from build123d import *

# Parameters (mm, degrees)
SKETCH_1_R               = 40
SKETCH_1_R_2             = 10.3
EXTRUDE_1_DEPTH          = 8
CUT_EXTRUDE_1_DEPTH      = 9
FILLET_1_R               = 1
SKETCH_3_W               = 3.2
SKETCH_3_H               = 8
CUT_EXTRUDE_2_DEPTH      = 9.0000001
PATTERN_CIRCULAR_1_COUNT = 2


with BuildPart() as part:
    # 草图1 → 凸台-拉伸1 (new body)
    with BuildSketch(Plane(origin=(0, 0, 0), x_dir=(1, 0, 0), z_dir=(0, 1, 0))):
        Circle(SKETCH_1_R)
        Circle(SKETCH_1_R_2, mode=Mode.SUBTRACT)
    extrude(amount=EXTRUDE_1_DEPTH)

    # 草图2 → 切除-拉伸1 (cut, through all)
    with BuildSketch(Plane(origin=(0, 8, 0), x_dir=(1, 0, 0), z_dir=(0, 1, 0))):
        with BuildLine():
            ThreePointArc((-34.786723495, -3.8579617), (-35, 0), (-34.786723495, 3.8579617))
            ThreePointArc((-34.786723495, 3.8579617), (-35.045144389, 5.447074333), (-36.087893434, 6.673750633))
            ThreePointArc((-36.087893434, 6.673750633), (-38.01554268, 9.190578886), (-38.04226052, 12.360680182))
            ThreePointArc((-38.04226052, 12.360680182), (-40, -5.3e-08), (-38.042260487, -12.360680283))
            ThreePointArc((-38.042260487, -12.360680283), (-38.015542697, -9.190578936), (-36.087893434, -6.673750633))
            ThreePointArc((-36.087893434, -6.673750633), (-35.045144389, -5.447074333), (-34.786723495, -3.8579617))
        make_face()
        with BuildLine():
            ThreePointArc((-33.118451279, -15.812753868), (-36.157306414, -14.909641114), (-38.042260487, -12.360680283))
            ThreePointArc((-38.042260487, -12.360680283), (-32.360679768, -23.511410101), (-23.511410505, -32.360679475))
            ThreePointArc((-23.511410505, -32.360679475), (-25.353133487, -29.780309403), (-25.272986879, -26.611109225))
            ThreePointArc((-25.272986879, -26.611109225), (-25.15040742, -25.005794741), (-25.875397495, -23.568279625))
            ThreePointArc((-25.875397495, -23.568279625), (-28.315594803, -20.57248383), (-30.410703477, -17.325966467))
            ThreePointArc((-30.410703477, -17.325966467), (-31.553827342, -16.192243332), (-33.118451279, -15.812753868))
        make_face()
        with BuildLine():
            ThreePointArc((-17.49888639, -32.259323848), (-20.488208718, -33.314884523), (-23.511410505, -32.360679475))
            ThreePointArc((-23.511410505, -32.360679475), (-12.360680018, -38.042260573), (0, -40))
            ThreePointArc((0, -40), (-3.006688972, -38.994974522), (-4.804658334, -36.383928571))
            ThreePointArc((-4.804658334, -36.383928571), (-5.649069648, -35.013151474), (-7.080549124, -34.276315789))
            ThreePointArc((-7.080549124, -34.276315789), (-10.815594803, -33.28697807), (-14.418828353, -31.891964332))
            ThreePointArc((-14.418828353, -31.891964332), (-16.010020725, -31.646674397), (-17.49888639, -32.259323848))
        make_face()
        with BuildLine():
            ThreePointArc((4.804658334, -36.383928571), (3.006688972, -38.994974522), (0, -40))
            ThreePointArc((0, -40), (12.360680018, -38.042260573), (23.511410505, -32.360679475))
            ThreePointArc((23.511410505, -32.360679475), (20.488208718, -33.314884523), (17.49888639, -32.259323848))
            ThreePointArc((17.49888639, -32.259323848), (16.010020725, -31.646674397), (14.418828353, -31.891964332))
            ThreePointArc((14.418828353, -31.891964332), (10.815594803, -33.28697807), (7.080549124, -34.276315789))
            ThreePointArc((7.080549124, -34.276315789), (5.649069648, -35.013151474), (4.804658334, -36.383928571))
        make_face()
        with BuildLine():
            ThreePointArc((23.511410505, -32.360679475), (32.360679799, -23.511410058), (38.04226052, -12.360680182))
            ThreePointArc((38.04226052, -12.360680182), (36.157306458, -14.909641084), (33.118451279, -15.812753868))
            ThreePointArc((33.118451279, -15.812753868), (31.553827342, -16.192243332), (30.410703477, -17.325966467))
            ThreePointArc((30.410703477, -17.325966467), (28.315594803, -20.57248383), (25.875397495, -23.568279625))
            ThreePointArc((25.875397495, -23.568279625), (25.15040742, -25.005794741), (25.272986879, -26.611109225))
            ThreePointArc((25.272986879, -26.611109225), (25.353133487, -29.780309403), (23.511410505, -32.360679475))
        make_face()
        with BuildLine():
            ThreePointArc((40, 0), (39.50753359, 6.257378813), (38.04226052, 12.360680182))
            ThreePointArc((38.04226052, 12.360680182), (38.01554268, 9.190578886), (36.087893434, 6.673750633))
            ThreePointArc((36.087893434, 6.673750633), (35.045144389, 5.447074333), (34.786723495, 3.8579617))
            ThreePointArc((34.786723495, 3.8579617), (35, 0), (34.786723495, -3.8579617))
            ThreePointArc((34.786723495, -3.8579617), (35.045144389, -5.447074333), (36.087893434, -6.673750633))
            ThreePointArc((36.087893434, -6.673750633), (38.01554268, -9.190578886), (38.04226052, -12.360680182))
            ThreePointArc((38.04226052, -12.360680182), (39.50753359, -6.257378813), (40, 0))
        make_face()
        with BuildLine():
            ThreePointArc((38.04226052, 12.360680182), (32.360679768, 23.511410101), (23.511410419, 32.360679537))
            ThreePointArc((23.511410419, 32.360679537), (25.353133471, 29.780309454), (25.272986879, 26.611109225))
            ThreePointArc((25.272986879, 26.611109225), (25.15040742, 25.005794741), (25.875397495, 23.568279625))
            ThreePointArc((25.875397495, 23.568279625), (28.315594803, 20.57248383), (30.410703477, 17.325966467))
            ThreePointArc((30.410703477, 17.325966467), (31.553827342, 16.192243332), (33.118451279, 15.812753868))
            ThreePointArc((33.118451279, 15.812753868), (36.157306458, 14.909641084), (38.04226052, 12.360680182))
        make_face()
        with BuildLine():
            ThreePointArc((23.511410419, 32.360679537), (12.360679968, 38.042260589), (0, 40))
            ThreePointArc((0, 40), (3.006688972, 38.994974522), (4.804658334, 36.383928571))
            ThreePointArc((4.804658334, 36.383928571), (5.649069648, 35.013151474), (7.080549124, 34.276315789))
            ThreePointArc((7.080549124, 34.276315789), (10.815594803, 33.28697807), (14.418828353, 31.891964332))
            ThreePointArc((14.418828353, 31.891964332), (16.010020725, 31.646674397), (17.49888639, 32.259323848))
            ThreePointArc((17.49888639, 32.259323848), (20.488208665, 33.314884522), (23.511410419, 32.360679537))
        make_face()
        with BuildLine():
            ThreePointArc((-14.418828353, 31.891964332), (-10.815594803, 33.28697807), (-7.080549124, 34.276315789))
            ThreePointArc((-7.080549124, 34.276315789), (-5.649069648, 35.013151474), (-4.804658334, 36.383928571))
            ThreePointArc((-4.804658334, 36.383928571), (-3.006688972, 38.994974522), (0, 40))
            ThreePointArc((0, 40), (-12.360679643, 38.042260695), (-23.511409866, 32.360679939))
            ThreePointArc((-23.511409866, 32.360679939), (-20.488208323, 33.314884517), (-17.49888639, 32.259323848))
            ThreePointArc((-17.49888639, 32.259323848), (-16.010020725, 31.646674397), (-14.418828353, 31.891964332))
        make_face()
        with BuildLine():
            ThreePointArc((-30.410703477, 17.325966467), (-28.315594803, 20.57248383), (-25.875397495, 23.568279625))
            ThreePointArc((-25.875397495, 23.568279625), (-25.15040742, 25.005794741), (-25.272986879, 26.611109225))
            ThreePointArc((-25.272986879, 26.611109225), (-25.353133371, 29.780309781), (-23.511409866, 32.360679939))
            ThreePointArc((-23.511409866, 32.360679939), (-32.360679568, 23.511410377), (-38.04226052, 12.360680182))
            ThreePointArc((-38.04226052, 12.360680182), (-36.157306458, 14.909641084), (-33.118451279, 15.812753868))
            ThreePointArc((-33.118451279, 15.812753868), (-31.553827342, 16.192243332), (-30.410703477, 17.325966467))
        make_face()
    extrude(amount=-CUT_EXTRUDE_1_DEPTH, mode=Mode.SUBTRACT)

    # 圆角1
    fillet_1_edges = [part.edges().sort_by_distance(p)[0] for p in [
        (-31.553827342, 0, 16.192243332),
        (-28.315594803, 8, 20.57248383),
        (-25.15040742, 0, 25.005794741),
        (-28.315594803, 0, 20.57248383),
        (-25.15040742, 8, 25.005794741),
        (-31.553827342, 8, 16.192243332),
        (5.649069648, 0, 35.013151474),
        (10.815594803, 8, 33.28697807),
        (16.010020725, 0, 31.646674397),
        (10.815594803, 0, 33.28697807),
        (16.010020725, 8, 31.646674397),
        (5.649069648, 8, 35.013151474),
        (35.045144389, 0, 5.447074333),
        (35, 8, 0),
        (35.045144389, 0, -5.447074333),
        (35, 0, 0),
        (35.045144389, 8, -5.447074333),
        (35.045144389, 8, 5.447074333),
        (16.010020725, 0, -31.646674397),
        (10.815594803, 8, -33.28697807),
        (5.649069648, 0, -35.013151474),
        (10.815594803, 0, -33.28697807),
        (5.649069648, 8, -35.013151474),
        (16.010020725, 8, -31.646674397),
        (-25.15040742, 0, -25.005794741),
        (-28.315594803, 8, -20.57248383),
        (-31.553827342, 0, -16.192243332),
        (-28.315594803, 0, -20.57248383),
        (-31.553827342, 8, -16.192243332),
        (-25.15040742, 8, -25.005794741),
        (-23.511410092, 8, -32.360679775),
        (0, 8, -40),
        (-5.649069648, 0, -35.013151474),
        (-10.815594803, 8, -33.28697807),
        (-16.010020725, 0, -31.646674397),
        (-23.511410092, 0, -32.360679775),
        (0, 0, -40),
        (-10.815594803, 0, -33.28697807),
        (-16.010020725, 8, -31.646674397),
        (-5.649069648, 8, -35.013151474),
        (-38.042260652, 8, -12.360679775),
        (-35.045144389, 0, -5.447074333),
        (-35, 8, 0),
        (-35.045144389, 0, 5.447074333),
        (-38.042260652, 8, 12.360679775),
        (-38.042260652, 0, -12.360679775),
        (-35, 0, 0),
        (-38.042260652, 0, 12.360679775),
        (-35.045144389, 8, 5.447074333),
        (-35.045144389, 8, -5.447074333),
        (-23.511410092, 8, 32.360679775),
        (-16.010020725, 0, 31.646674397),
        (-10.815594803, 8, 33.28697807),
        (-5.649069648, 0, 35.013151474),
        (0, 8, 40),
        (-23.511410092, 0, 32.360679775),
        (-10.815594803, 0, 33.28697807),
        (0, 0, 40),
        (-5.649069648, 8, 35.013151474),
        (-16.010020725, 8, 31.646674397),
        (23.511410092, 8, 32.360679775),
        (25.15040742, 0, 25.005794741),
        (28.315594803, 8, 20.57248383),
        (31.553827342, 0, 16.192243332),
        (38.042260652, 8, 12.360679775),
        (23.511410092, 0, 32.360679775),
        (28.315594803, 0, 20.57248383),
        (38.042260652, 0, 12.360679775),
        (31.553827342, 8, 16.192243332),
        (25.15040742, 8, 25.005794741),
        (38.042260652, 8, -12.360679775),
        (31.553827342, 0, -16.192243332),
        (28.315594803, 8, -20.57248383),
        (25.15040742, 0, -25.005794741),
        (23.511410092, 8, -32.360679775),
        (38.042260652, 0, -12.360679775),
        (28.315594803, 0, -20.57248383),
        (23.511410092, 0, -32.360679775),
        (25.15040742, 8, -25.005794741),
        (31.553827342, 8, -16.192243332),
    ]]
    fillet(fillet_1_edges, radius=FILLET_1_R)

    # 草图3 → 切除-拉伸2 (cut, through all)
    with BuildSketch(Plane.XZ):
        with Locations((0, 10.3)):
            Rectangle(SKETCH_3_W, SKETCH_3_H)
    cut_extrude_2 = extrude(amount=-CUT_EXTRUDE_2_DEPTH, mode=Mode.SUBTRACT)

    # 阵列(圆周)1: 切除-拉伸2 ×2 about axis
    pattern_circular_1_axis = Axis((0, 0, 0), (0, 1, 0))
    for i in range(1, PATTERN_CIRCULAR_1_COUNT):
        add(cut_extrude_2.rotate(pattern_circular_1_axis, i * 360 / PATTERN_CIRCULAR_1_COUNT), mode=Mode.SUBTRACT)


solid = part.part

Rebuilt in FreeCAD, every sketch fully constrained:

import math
import FreeCAD as App
import Part
import Sketcher

V = App.Vector
Q = App.Units.Quantity


def edges_at(feature, points):
    """Names of the edges that pass closest to the given points."""
    edges = feature.Shape.Edges
    near = lambda p: min(range(len(edges)), key=lambda i: edges[i].distToShape(Part.Vertex(*p))[0])
    return sorted({f"Edge{near(p) + 1}" for p in points})


def add_polygon(sketch, points):
    """Adds a closed chain of lines whose ends are joined by coincident constraints."""
    first, n = sketch.GeometryCount, len(points)
    for a, b in zip(points, points[1:] + points[:1]):
        sketch.addGeometry(Part.LineSegment(App.Vector(*a, 0), App.Vector(*b, 0)), False)
    for i in range(n):
        sketch.addConstraint(Sketcher.Constraint("Coincident", first + i, 2, first + (i + 1) % n, 1))

doc = App.newDocument("Part")
params = doc.addObject("Spreadsheet::Sheet", "Params")
for row, (alias, value) in enumerate([
    ("sketch1_diameter", "80 mm"),
    ("sketch1_diameter2", "20.6 mm"),
    ("pad1_length", "8 mm"),
    ("sketch2_radius", "35 mm"),
    ("sketch2_radius2", "3 mm"),
    ("sketch2_radius3", "5 mm"),
    ("sketch2_radius4", "40 mm"),
    ("fillet_radius", "1 mm"),
    ("sketch3_height", "8 mm"),
    ("sketch3_width", "3.2 mm"),
], start=1):
    params.set(f"A{row}", alias)
    params.set(f"B{row}", "=" + value)
    params.setAlias(f"B{row}", alias)

body = doc.addObject("PartDesign::Body", "Body")

sketch1 = body.newObject("Sketcher::SketchObject", "Sketch")
sketch1.AttachmentSupport = (doc.getObject("XZ_Plane"), [""])
sketch1.MapMode = "FlatFace"
sketch1.addGeometry([
    Part.Circle(V(0, 0, 0), V(0, 0, 1), 40),
    Part.Circle(V(0, 0, 0), V(0, 0, 1), 10),
], False)
sketch1.addConstraint([
    Sketcher.Constraint("Coincident", 0, 3, -1, 1),
    Sketcher.Constraint("Coincident", 1, 3, -1, 1),
    Sketcher.Constraint("Diameter", 0, Q("80 mm")),
    Sketcher.Constraint("Diameter", 1, Q("20.6 mm")),
])
sketch1.setExpression("Constraints[2]", "Params.sketch1_diameter")
sketch1.setExpression("Constraints[3]", "Params.sketch1_diameter2")
pad1 = body.newObject("PartDesign::Pad", "Pad")
pad1.Profile = sketch1
pad1.setExpression("Length", "Params.pad1_length")
pad1.Reversed = True

sketch2 = body.newObject("Sketcher::SketchObject", "Sketch001")
sketch2.AttachmentSupport = (doc.getObject("XZ_Plane"), [""])
sketch2.MapMode = "FlatFace"
sketch2.AttachmentOffset = App.Placement(V(0, 0, -8), App.Rotation())
sketch2.addGeometry([
    Part.ArcOfCircle(Part.Circle(V(0, 0, 0), V(0, 0, 1), 35), math.radians(173.67), math.radians(186.33)),
    Part.ArcOfCircle(Part.Circle(V(-37.8, -4.2, 0), V(0, 0, 1), 3), math.radians(-56), math.radians(6)),
    Part.ArcOfCircle(Part.Circle(V(-33.3, -10.8, 0), V(0, 0, 1), 5), math.radians(124), math.radians(198)),
    Part.ArcOfCircle(Part.Circle(V(0, 0, 0), V(0, 0, 1), 40), math.radians(162), math.radians(198)),
    Part.ArcOfCircle(Part.Circle(V(-33.3, 10.8, 0), V(0, 0, 1), 5), math.radians(162), math.radians(236)),
    Part.ArcOfCircle(Part.Circle(V(-37.8, 4.2, 0), V(0, 0, 1), 3), math.radians(-6), math.radians(56)),
    Part.ArcOfCircle(Part.Circle(V(-33.3, 10.8, 0), V(0, 0, 1), 5), math.radians(88), math.radians(162)),
    Part.ArcOfCircle(Part.Circle(V(0, 0, 0), V(0, 0, 1), 40), math.radians(126), math.radians(162)),
    Part.ArcOfCircle(Part.Circle(V(-20.6, 28.3, 0), V(0, 0, 1), 5), math.radians(126), math.radians(200)),
    Part.ArcOfCircle(Part.Circle(V(-28.1, 25.6, 0), V(0, 0, 1), 3), math.radians(-42), math.radians(20)),
    Part.ArcOfCircle(Part.Circle(V(0, 0, 0), V(0, 0, 1), 35), math.radians(137.67), math.radians(150.33)),
    Part.ArcOfCircle(Part.Circle(V(-33, 18.8, 0), V(0, 0, 1), 3), math.radians(-92), math.radians(-30)),
    Part.ArcOfCircle(Part.Circle(V(-20.6, 28.3, 0), V(0, 0, 1), 5), math.radians(52), math.radians(126)),
    Part.ArcOfCircle(Part.Circle(V(0, 0, 0), V(0, 0, 1), 40), math.radians(90), math.radians(126)),
    Part.ArcOfCircle(Part.Circle(V(0, 35, 0), V(0, 0, 1), 5), math.radians(90), math.radians(164)),
    Part.ArcOfCircle(Part.Circle(V(-7.7, 37.2, 0), V(0, 0, 1), 3), math.radians(-78), math.radians(-16)),
    Part.ArcOfCircle(Part.Circle(V(0, 0, 0), V(0, 0, 1), 35), math.radians(101.67), math.radians(114.33)),
    Part.ArcOfCircle(Part.Circle(V(-15.7, 34.6, 0), V(0, 0, 1), 3), math.radians(-128), math.radians(-66)),
    Part.ArcOfCircle(Part.Circle(V(0, 35, 0), V(0, 0, 1), 5), math.radians(16), math.radians(90)),
    Part.ArcOfCircle(Part.Circle(V(0, 0, 0), V(0, 0, 1), 40), math.radians(54), math.radians(90)),
    Part.ArcOfCircle(Part.Circle(V(20.6, 28.3, 0), V(0, 0, 1), 5), math.radians(54), math.radians(128)),
    Part.ArcOfCircle(Part.Circle(V(15.7, 34.6, 0), V(0, 0, 1), 3), math.radians(-114), math.radians(-52)),
    Part.ArcOfCircle(Part.Circle(V(0, 0, 0), V(0, 0, 1), 35), math.radians(65.67), math.radians(78.33)),
    Part.ArcOfCircle(Part.Circle(V(7.7, 37.2, 0), V(0, 0, 1), 3), math.radians(-164), math.radians(-102)),
    Part.ArcOfCircle(Part.Circle(V(0, 0, 0), V(0, 0, 1), 40), math.radians(18), math.radians(54)),
    Part.ArcOfCircle(Part.Circle(V(33.3, 10.8, 0), V(0, 0, 1), 5), math.radians(18), math.radians(92)),
    Part.ArcOfCircle(Part.Circle(V(33, 18.8, 0), V(0, 0, 1), 3), math.radians(-150), math.radians(-88)),
    Part.ArcOfCircle(Part.Circle(V(0, 0, 0), V(0, 0, 1), 35), math.radians(29.67), math.radians(42.33)),
    Part.ArcOfCircle(Part.Circle(V(28.1, 25.6, 0), V(0, 0, 1), 3), math.radians(160), math.radians(222)),
    Part.ArcOfCircle(Part.Circle(V(20.6, 28.3, 0), V(0, 0, 1), 5), math.radians(-20), math.radians(54)),
    Part.ArcOfCircle(Part.Circle(V(0, 0, 0), V(0, 0, 1), 40), math.radians(-18), math.radians(0)),
    Part.ArcOfCircle(Part.Circle(V(33.3, -10.8, 0), V(0, 0, 1), 5), math.radians(-18), math.radians(56)),
    Part.ArcOfCircle(Part.Circle(V(37.8, -4.2, 0), V(0, 0, 1), 3), math.radians(174), math.radians(236)),
    Part.ArcOfCircle(Part.Circle(V(0, 0, 0), V(0, 0, 1), 35), math.radians(-6.33), math.radians(6.33)),
    Part.ArcOfCircle(Part.Circle(V(37.8, 4.2, 0), V(0, 0, 1), 3), math.radians(124), math.radians(186)),
    Part.ArcOfCircle(Part.Circle(V(33.3, 10.8, 0), V(0, 0, 1), 5), math.radians(-56), math.radians(18)),
    Part.ArcOfCircle(Part.Circle(V(0, 0, 0), V(0, 0, 1), 40), math.radians(0), math.radians(18)),
    Part.ArcOfCircle(Part.Circle(V(0, 0, 0), V(0, 0, 1), 40), math.radians(-54), math.radians(-18)),
    Part.ArcOfCircle(Part.Circle(V(20.6, -28.3, 0), V(0, 0, 1), 5), math.radians(-54), math.radians(20)),
    Part.ArcOfCircle(Part.Circle(V(28.1, -25.6, 0), V(0, 0, 1), 3), math.radians(138), math.radians(200)),
    Part.ArcOfCircle(Part.Circle(V(0, 0, 0), V(0, 0, 1), 35), math.radians(-42.33), math.radians(-29.67)),
    Part.ArcOfCircle(Part.Circle(V(33, -18.8, 0), V(0, 0, 1), 3), math.radians(88), math.radians(150)),
    Part.ArcOfCircle(Part.Circle(V(33.3, -10.8, 0), V(0, 0, 1), 5), math.radians(-92), math.radians(-18)),
    Part.ArcOfCircle(Part.Circle(V(0, 0, 0), V(0, 0, 1), 40), math.radians(-90), math.radians(-54)),
    Part.ArcOfCircle(Part.Circle(V(0, -35, 0), V(0, 0, 1), 5), math.radians(-90), math.radians(-16)),
    Part.ArcOfCircle(Part.Circle(V(7.7, -37.2, 0), V(0, 0, 1), 3), math.radians(102), math.radians(164)),
    Part.ArcOfCircle(Part.Circle(V(0, 0, 0), V(0, 0, 1), 35), math.radians(-78.33), math.radians(-65.67)),
    Part.ArcOfCircle(Part.Circle(V(15.7, -34.6, 0), V(0, 0, 1), 3), math.radians(52), math.radians(114)),
    Part.ArcOfCircle(Part.Circle(V(20.6, -28.3, 0), V(0, 0, 1), 5), math.radians(-128), math.radians(-54)),
    Part.ArcOfCircle(Part.Circle(V(0, 0, 0), V(0, 0, 1), 35), math.radians(-114.33), math.radians(-101.67)),
    Part.ArcOfCircle(Part.Circle(V(-7.7, -37.2, 0), V(0, 0, 1), 3), math.radians(16), math.radians(78)),
    Part.ArcOfCircle(Part.Circle(V(0, -35, 0), V(0, 0, 1), 5), math.radians(-164), math.radians(-90)),
    Part.ArcOfCircle(Part.Circle(V(0, 0, 0), V(0, 0, 1), 40), math.radians(-126), math.radians(-90)),
    Part.ArcOfCircle(Part.Circle(V(-20.6, -28.3, 0), V(0, 0, 1), 5), math.radians(-126), math.radians(-52)),
    Part.ArcOfCircle(Part.Circle(V(-15.7, -34.6, 0), V(0, 0, 1), 3), math.radians(66), math.radians(128)),
    Part.ArcOfCircle(Part.Circle(V(0, 0, 0), V(0, 0, 1), 35), math.radians(-150.33), math.radians(-137.67)),
    Part.ArcOfCircle(Part.Circle(V(-28.1, -25.6, 0), V(0, 0, 1), 3), math.radians(-20), math.radians(42)),
    Part.ArcOfCircle(Part.Circle(V(-20.6, -28.3, 0), V(0, 0, 1), 5), math.radians(160), math.radians(234)),
    Part.ArcOfCircle(Part.Circle(V(0, 0, 0), V(0, 0, 1), 40), math.radians(-162), math.radians(-126)),
    Part.ArcOfCircle(Part.Circle(V(-33.3, -10.8, 0), V(0, 0, 1), 5), math.radians(-162), math.radians(-88)),
    Part.ArcOfCircle(Part.Circle(V(-33, -18.8, 0), V(0, 0, 1), 3), math.radians(30), math.radians(92)),
], False)
sketch2.addConstraint([
    Sketcher.Constraint("Tangent", 0, 2, 1, 2),
    Sketcher.Constraint("Tangent", 1, 1, 2, 1),
    Sketcher.Constraint("Tangent", 2, 2, 3, 2),
    Sketcher.Constraint("Tangent", 3, 1, 4, 1),
    Sketcher.Constraint("Tangent", 4, 2, 5, 2),
    Sketcher.Constraint("Tangent", 5, 1, 0, 1),
    Sketcher.Constraint("Tangent", 6, 2, 7, 2),
    Sketcher.Constraint("Tangent", 7, 1, 8, 1),
    Sketcher.Constraint("Tangent", 8, 2, 9, 2),
    Sketcher.Constraint("Tangent", 9, 1, 10, 1),
    Sketcher.Constraint("Tangent", 10, 2, 11, 2),
    Sketcher.Constraint("Tangent", 11, 1, 6, 1),
    Sketcher.Constraint("Tangent", 12, 2, 13, 2),
    Sketcher.Constraint("Tangent", 13, 1, 14, 1),
    Sketcher.Constraint("Tangent", 14, 2, 15, 2),
    Sketcher.Constraint("Tangent", 15, 1, 16, 1),
    Sketcher.Constraint("Tangent", 16, 2, 17, 2),
    Sketcher.Constraint("Tangent", 17, 1, 12, 1),
    Sketcher.Constraint("Tangent", 18, 2, 19, 2),
    Sketcher.Constraint("Tangent", 19, 1, 20, 1),
    Sketcher.Constraint("Tangent", 20, 2, 21, 2),
    Sketcher.Constraint("Tangent", 21, 1, 22, 1),
    Sketcher.Constraint("Tangent", 22, 2, 23, 2),
    Sketcher.Constraint("Tangent", 23, 1, 18, 1),
    Sketcher.Constraint("Tangent", 24, 1, 25, 1),
    Sketcher.Constraint("Tangent", 25, 2, 26, 2),
    Sketcher.Constraint("Tangent", 26, 1, 27, 1),
    Sketcher.Constraint("Tangent", 27, 2, 28, 2),
    Sketcher.Constraint("Tangent", 28, 1, 29, 1),
    Sketcher.Constraint("Tangent", 29, 2, 24, 2),
    Sketcher.Constraint("Tangent", 30, 1, 31, 1),
    Sketcher.Constraint("Tangent", 31, 2, 32, 2),
    Sketcher.Constraint("Tangent", 32, 1, 33, 1),
    Sketcher.Constraint("Tangent", 33, 2, 34, 2),
    Sketcher.Constraint("Tangent", 34, 1, 35, 1),
    Sketcher.Constraint("Tangent", 35, 2, 36, 2),
    Sketcher.Constraint("Tangent", 36, 1, 30, 2),
    Sketcher.Constraint("Tangent", 37, 1, 38, 1),
    Sketcher.Constraint("Tangent", 38, 2, 39, 2),
    Sketcher.Constraint("Tangent", 39, 1, 40, 1),
    Sketcher.Constraint("Tangent", 40, 2, 41, 2),
    Sketcher.Constraint("Tangent", 41, 1, 42, 1),
    Sketcher.Constraint("Tangent", 42, 2, 37, 2),
    Sketcher.Constraint("Tangent", 43, 1, 44, 1),
    Sketcher.Constraint("Tangent", 44, 2, 45, 2),
    Sketcher.Constraint("Tangent", 45, 1, 46, 1),
    Sketcher.Constraint("Tangent", 46, 2, 47, 2),
    Sketcher.Constraint("Tangent", 47, 1, 48, 1),
    Sketcher.Constraint("Tangent", 48, 2, 43, 2),
    Sketcher.Constraint("Tangent", 49, 2, 50, 2),
    Sketcher.Constraint("Tangent", 50, 1, 51, 1),
    Sketcher.Constraint("Tangent", 51, 2, 52, 2),
    Sketcher.Constraint("Tangent", 52, 1, 53, 1),
    Sketcher.Constraint("Tangent", 53, 2, 54, 2),
    Sketcher.Constraint("Tangent", 54, 1, 49, 1),
    Sketcher.Constraint("Tangent", 55, 2, 56, 2),
    Sketcher.Constraint("Tangent", 56, 1, 57, 1),
    Sketcher.Constraint("Tangent", 57, 2, 58, 2),
    Sketcher.Constraint("Tangent", 58, 1, 59, 1),
    Sketcher.Constraint("Tangent", 59, 2, 60, 2),
    Sketcher.Constraint("Tangent", 60, 1, 55, 1),
    Sketcher.Constraint("Coincident", 0, 3, -1, 1),
    Sketcher.Constraint("Coincident", 3, 3, -1, 1),
    Sketcher.Constraint("Coincident", 7, 3, -1, 1),
    Sketcher.Constraint("Coincident", 10, 3, -1, 1),
    Sketcher.Constraint("Coincident", 13, 3, -1, 1),
    Sketcher.Constraint("Coincident", 16, 3, -1, 1),
    Sketcher.Constraint("Coincident", 19, 3, -1, 1),
    Sketcher.Constraint("Coincident", 22, 3, -1, 1),
    Sketcher.Constraint("Coincident", 24, 3, -1, 1),
    Sketcher.Constraint("Coincident", 27, 3, -1, 1),
    Sketcher.Constraint("Coincident", 30, 3, -1, 1),
    Sketcher.Constraint("Coincident", 33, 3, -1, 1),
    Sketcher.Constraint("Coincident", 37, 3, -1, 1),
    Sketcher.Constraint("Coincident", 40, 3, -1, 1),
    Sketcher.Constraint("Coincident", 43, 3, -1, 1),
    Sketcher.Constraint("Coincident", 46, 3, -1, 1),
    Sketcher.Constraint("Coincident", 49, 3, -1, 1),
    Sketcher.Constraint("Coincident", 52, 3, -1, 1),
    Sketcher.Constraint("Coincident", 55, 3, -1, 1),
    Sketcher.Constraint("Coincident", 58, 3, -1, 1),
    Sketcher.Constraint("Coincident", 6, 3, 4, 3),
    Sketcher.Constraint("Coincident", 12, 3, 8, 3),
    Sketcher.Constraint("Coincident", 18, 3, 14, 3),
    Sketcher.Constraint("Coincident", 29, 3, 20, 3),
    Sketcher.Constraint("Coincident", 35, 3, 25, 3),
    Sketcher.Constraint("Coincident", 42, 3, 31, 3),
    Sketcher.Constraint("Coincident", 48, 3, 38, 3),
    Sketcher.Constraint("Coincident", 51, 3, 44, 3),
    Sketcher.Constraint("Coincident", 57, 3, 53, 3),
    Sketcher.Constraint("Coincident", 59, 3, 2, 3),
    Sketcher.Constraint("Equal", 2, 4),
    Sketcher.Constraint("Equal", 1, 5),
    Sketcher.Constraint("Equal", 4, 6),
    Sketcher.Constraint("Equal", 6, 8),
    Sketcher.Constraint("Equal", 5, 9),
    Sketcher.Constraint("Equal", 0, 10),
    Sketcher.Constraint("Equal", 9, 11),
    Sketcher.Constraint("Equal", 8, 12),
    Sketcher.Constraint("Equal", 12, 14),
    Sketcher.Constraint("Equal", 11, 15),
    Sketcher.Constraint("Equal", 10, 16),
    Sketcher.Constraint("Equal", 15, 17),
    Sketcher.Constraint("Equal", 14, 18),
    Sketcher.Constraint("Equal", 18, 20),
    Sketcher.Constraint("Equal", 17, 21),
    Sketcher.Constraint("Equal", 16, 22),
    Sketcher.Constraint("Equal", 21, 23),
    Sketcher.Constraint("Equal", 19, 24),
    Sketcher.Constraint("Equal", 20, 25),
    Sketcher.Constraint("Equal", 23, 26),
    Sketcher.Constraint("Equal", 22, 27),
    Sketcher.Constraint("Equal", 26, 28),
    Sketcher.Constraint("Equal", 24, 30),
    Sketcher.Constraint("Equal", 29, 31),
    Sketcher.Constraint("Equal", 28, 32),
    Sketcher.Constraint("Equal", 27, 33),
    Sketcher.Constraint("Equal", 32, 34),
    Sketcher.Constraint("Equal", 31, 35),
    Sketcher.Constraint("Equal", 36, 37),
    Sketcher.Constraint("Equal", 35, 38),
    Sketcher.Constraint("Equal", 34, 39),
    Sketcher.Constraint("Equal", 33, 40),
    Sketcher.Constraint("Equal", 39, 41),
    Sketcher.Constraint("Equal", 37, 43),
    Sketcher.Constraint("Equal", 42, 44),
    Sketcher.Constraint("Equal", 41, 45),
    Sketcher.Constraint("Equal", 40, 46),
    Sketcher.Constraint("Equal", 45, 47),
    Sketcher.Constraint("Equal", 46, 49),
    Sketcher.Constraint("Equal", 47, 50),
    Sketcher.Constraint("Equal", 48, 51),
    Sketcher.Constraint("Equal", 51, 53),
    Sketcher.Constraint("Equal", 50, 54),
    Sketcher.Constraint("Equal", 49, 55),
    Sketcher.Constraint("Equal", 54, 56),
    Sketcher.Constraint("Equal", 53, 57),
    Sketcher.Constraint("Equal", 56, 60),
    Sketcher.Constraint("PointOnObject", 14, 3, -2),
    Sketcher.Constraint("PointOnObject", 44, 3, -2),
    Sketcher.Constraint("PointOnObject", 36, 1, -1),
    Sketcher.Constraint("Horizontal", 12, 3, 20, 3),
    Sketcher.Constraint("Horizontal", 6, 3, 25, 3),
    Sketcher.Constraint("Horizontal", 2, 3, 31, 3),
    Sketcher.Constraint("Horizontal", 48, 3, 53, 3),
    Sketcher.Constraint("Vertical", 2, 3, 4, 3),
    Sketcher.Constraint("Vertical", 29, 3, 38, 3),
    Sketcher.Constraint("Radius", 0, Q("35 mm")),
    Sketcher.Constraint("Radius", 1, Q("3 mm")),
    Sketcher.Constraint("Radius", 2, Q("5 mm")),
    Sketcher.Constraint("Radius", 3, Q("40 mm")),
    Sketcher.Constraint("DistanceX", 2, 3, -1, 1, Q("33.286978 mm")),
    Sketcher.Constraint("DistanceX", 9, 3, -1, 1, Q("28.093289 mm")),
])
sketch2.setExpression("Constraints[147]", "Params.sketch2_radius")
sketch2.setExpression("Constraints[148]", "Params.sketch2_radius2")
sketch2.setExpression("Constraints[149]", "Params.sketch2_radius3")
sketch2.setExpression("Constraints[150]", "Params.sketch2_radius4")
pocket1 = body.newObject("PartDesign::Pocket", "Pocket")
pocket1.Profile = sketch2
pocket1.Type = "ThroughAll"
pocket1.Reversed = True
doc.recompute()

fillet = body.newObject("PartDesign::Fillet", "Fillet")
fillet.Base = (pocket1, edges_at(pocket1, [
    (-31.554, 0, 16.192),
    (-28.316, 8, 20.572),
    (-25.15, 0, 25.006),
    (-28.316, 0, 20.572),
    (-25.15, 8, 25.006),
    (-31.554, 8, 16.192),
    (5.649, 0, 35.013),
    (10.816, 8, 33.287),
    (16.01, 0, 31.647),
    (10.816, 0, 33.287),
    (16.01, 8, 31.647),
    (5.649, 8, 35.013),
    (35.045, 0, 5.447),
    (35, 8, 0),
    (35.045, 0, -5.447),
    (35, 0, 0),
    (35.045, 8, -5.447),
    (35.045, 8, 5.447),
    (16.01, 0, -31.647),
    (10.816, 8, -33.287),
    (5.649, 0, -35.013),
    (10.816, 0, -33.287),
    (5.649, 8, -35.013),
    (16.01, 8, -31.647),
    (-25.15, 0, -25.006),
    (-28.316, 8, -20.572),
    (-31.554, 0, -16.192),
    (-28.316, 0, -20.572),
    (-31.554, 8, -16.192),
    (-25.15, 8, -25.006),
    (-25.353, 8, -29.78),
    (-3.007, 8, -38.995),
    (-5.649, 0, -35.013),
    (-10.816, 8, -33.287),
    (-16.01, 0, -31.647),
    (-25.353, 0, -29.78),
    (-3.007, 0, -38.995),
    (-10.816, 0, -33.287),
    (-16.01, 8, -31.647),
    (-5.649, 8, -35.013),
    (-38.016, 8, -9.191),
    (-35.045, 0, -5.447),
    (-35, 8, 0),
    (-35.045, 0, 5.447),
    (-38.016, 8, 9.191),
    (-38.016, 0, -9.191),
    (-35, 0, 0),
    (-38.016, 0, 9.191),
    (-35.045, 8, 5.447),
    (-35.045, 8, -5.447),
    (-20.488, 8, 33.315),
    (-16.01, 0, 31.647),
    (-10.816, 8, 33.287),
    (-5.649, 0, 35.013),
    (3.007, 8, 38.995),
    (-20.488, 0, 33.315),
    (-10.816, 0, 33.287),
    (3.007, 0, 38.995),
    (-5.649, 8, 35.013),
    (-16.01, 8, 31.647),
    (20.488, 8, 33.315),
    (25.15, 0, 25.006),
    (28.316, 8, 20.572),
    (31.554, 0, 16.192),
    (38.016, 8, 9.191),
    (20.488, 0, 33.315),
    (28.316, 0, 20.572),
    (38.016, 0, 9.191),
    (31.554, 8, 16.192),
    (25.15, 8, 25.006),
    (38.016, 8, -9.191),
    (31.554, 0, -16.192),
    (28.316, 8, -20.572),
    (25.15, 0, -25.006),
    (20.488, 8, -33.315),
    (38.016, 0, -9.191),
    (28.316, 0, -20.572),
    (20.488, 0, -33.315),
    (25.15, 8, -25.006),
    (31.554, 8, -16.192),
]))
fillet.setExpression("Radius", "Params.fillet_radius")

sketch3 = body.newObject("Sketcher::SketchObject", "Sketch002")
sketch3.AttachmentSupport = (doc.getObject("XZ_Plane"), [""])
sketch3.MapMode = "FlatFace"
add_polygon(sketch3, [(-1.6, 14.3), (-1.6, 6.3), (1.6, 6.3), (1.6, 14.3)])
sketch3.addConstraint([
    Sketcher.Constraint("Vertical", 0),
    Sketcher.Constraint("Horizontal", 1),
    Sketcher.Constraint("Vertical", 2),
    Sketcher.Constraint("Horizontal", 3),
    Sketcher.Constraint("DistanceY", 0, 2, 0, 1, Q("8 mm")),
    Sketcher.Constraint("DistanceX", 1, 1, 1, 2, Q("3.2 mm")),
    Sketcher.Constraint("DistanceX", 0, 2, -1, 1, Q("1.6 mm")),
    Sketcher.Constraint("DistanceY", -1, 1, 0, 2, Q("6.3 mm")),
])
sketch3.setExpression("Constraints[8]", "Params.sketch3_height")
sketch3.setExpression("Constraints[9]", "Params.sketch3_width")
pocket2 = body.newObject("PartDesign::Pocket", "Pocket001")
pocket2.Profile = sketch3
pocket2.Type = "ThroughAll"
doc.recompute()

polarpattern = body.newObject("PartDesign::PolarPattern", "PolarPattern")
polarpattern.Originals = [pocket2]
polarpattern.Axis = (doc.getObject("Y_Axis"), [""])
polarpattern.Angle = 360
polarpattern.Occurrences = 2
body.Tip = polarpattern

doc.recompute()
